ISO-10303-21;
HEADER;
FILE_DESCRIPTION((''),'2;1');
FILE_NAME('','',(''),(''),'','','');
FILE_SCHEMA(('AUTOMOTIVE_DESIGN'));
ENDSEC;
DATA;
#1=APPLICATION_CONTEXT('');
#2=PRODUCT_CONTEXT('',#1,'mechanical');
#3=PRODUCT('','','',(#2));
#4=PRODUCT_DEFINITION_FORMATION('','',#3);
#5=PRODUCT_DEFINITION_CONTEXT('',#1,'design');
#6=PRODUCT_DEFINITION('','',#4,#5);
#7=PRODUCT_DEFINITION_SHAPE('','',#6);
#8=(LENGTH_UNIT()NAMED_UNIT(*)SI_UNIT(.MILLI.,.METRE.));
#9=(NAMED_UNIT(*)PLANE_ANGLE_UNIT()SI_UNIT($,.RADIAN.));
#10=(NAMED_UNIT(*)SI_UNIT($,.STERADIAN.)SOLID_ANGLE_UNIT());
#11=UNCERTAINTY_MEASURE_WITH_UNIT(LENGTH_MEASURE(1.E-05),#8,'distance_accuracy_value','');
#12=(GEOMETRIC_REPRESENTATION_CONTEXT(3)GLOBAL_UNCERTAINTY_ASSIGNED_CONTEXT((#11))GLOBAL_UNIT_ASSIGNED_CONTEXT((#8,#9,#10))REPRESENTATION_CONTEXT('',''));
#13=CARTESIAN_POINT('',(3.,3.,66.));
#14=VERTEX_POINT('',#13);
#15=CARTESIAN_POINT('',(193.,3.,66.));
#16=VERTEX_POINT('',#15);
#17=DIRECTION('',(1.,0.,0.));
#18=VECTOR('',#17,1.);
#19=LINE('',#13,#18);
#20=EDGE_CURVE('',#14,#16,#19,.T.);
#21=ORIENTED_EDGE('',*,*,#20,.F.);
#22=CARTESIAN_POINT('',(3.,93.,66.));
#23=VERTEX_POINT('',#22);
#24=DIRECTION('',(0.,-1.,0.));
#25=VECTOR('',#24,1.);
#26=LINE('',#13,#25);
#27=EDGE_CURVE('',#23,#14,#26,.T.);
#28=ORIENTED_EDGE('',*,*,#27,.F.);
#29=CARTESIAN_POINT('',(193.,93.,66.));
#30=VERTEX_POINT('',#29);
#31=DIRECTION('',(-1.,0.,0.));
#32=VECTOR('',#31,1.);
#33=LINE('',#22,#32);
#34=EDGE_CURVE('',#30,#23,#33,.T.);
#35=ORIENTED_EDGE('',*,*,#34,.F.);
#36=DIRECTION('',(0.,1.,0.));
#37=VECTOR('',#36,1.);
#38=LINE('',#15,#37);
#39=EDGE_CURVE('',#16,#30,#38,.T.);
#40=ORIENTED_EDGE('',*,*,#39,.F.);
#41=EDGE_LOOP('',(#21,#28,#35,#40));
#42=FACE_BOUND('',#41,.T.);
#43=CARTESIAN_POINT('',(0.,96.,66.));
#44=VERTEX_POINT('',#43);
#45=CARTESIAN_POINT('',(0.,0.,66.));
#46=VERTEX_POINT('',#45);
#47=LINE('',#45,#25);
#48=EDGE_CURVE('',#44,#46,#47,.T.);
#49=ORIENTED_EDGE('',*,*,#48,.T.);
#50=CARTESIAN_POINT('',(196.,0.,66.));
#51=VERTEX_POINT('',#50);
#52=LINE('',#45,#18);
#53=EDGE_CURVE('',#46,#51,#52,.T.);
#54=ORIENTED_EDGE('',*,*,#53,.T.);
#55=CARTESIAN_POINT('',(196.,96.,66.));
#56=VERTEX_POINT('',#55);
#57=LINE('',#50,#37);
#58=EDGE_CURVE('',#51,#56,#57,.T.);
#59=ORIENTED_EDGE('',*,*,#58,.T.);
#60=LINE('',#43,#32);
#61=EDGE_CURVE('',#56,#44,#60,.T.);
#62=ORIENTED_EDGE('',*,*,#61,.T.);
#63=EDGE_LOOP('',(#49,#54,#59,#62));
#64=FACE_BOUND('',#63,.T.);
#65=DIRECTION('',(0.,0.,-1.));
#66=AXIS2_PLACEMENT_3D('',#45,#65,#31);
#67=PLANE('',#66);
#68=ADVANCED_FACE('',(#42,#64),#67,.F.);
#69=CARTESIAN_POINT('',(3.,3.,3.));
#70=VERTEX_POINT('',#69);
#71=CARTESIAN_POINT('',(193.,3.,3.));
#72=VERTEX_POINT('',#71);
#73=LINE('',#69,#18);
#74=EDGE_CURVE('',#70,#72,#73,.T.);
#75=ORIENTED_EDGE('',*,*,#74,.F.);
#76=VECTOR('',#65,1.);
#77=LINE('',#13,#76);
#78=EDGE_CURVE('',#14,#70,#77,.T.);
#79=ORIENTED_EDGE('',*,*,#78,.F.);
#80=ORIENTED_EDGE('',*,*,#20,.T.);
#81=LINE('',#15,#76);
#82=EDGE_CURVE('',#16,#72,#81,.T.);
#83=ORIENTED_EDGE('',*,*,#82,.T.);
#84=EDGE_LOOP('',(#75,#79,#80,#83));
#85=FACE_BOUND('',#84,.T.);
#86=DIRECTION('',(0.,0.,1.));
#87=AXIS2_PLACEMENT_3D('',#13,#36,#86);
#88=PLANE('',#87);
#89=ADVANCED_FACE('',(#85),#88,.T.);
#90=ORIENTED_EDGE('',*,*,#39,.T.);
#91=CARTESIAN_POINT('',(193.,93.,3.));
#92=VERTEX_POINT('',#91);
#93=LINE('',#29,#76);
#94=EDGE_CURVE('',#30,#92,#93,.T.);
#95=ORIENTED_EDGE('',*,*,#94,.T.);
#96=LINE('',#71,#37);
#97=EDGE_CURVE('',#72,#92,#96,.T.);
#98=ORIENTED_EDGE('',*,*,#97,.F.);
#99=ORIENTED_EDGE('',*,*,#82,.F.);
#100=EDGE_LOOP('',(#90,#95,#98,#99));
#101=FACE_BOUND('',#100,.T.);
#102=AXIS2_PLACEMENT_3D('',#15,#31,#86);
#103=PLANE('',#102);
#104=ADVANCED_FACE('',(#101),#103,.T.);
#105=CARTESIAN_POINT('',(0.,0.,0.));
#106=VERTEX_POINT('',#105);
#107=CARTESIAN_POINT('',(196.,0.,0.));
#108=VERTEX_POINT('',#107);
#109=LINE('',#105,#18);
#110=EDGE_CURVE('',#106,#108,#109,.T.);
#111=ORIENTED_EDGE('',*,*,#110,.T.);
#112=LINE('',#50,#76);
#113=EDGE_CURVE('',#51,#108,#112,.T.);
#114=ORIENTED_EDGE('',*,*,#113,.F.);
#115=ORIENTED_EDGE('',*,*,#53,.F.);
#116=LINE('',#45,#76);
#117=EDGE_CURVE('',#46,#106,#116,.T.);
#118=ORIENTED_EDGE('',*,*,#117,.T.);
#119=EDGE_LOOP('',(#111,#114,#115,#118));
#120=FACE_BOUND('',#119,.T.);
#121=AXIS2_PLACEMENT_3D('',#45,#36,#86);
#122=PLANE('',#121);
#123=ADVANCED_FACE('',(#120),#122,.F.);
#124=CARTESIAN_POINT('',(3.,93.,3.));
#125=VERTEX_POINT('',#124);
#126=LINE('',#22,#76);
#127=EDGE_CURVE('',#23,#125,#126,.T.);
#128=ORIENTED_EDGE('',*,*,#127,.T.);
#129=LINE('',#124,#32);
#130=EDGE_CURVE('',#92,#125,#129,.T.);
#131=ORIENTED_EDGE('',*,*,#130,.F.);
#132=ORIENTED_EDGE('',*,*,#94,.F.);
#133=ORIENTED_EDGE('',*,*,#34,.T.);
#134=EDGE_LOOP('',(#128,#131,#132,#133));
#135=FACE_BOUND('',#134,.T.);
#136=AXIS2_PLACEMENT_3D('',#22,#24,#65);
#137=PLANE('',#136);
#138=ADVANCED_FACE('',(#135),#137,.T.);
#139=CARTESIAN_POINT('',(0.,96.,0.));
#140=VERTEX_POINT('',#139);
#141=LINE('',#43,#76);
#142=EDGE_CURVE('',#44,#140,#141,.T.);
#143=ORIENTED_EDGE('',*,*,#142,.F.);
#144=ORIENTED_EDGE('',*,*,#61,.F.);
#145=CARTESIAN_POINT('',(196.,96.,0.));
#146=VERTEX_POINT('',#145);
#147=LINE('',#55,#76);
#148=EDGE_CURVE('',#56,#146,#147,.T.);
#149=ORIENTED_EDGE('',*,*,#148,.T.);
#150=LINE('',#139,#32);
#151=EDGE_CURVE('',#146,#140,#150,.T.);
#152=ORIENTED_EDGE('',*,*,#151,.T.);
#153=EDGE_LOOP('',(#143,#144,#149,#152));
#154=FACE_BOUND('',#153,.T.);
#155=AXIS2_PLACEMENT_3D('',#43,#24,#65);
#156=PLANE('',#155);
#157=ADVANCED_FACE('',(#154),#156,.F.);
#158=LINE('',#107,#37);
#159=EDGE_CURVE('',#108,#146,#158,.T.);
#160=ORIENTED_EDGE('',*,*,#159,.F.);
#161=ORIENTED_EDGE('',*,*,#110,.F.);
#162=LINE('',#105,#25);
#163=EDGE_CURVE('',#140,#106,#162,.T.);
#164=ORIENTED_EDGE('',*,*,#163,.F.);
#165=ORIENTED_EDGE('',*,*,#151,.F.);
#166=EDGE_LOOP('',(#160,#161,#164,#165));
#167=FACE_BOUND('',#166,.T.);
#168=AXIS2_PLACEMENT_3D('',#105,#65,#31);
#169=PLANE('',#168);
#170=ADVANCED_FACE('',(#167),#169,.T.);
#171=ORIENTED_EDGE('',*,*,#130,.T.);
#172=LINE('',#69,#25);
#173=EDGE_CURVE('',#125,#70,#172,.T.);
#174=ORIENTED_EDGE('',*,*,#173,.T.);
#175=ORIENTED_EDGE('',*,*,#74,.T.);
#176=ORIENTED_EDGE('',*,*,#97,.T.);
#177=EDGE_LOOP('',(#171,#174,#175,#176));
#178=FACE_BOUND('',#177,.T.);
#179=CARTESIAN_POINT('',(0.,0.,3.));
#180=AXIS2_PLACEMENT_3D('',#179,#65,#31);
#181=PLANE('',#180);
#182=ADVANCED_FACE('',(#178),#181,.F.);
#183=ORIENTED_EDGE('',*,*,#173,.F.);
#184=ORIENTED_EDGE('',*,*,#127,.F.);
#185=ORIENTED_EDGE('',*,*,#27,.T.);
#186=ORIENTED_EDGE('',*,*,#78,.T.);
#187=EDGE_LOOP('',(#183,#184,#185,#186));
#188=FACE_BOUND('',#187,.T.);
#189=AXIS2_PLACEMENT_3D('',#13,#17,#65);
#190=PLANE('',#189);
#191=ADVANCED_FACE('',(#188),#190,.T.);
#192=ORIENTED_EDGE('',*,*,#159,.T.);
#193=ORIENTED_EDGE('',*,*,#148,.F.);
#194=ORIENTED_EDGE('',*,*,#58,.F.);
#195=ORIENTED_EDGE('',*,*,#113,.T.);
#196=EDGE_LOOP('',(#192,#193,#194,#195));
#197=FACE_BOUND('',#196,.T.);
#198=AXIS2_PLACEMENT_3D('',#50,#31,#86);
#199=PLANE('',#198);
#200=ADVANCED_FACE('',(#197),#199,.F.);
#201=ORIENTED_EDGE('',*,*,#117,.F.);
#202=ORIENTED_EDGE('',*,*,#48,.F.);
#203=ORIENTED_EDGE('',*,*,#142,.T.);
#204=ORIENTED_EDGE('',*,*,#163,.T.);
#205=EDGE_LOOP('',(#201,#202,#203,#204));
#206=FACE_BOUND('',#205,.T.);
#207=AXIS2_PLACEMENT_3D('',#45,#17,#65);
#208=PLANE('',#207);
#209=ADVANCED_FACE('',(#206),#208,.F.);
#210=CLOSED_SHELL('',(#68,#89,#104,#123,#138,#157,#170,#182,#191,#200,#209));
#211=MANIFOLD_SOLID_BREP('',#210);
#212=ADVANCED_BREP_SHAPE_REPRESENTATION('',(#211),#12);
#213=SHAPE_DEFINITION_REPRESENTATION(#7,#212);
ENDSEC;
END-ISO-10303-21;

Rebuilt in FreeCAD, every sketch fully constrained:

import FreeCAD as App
import Part
import Sketcher

V = App.Vector
Q = App.Units.Quantity

doc = App.newDocument("Part")
body = doc.addObject("PartDesign::Body", "Body")

# Sketch on XY plane
sketch1 = body.newObject("Sketcher::SketchObject", "Sketch")
sketch1.AttachmentSupport = (doc.getObject("XY_Plane"), [""])
sketch1.MapMode = "FlatFace"
sketch1.addGeometry(Part.LineSegment(V(0, 96, 0), V(0, 0, 0)), False)
sketch1.addGeometry(Part.LineSegment(V(0, 0, 0), V(196, 0, 0)), False)
sketch1.addGeometry(Part.LineSegment(V(196, 0, 0), V(196, 96, 0)), False)
sketch1.addGeometry(Part.LineSegment(V(196, 96, 0), V(0, 96, 0)), False)
sketch1.addGeometry(Part.LineSegment(V(193, 3, 0), V(3, 3, 0)), False)
sketch1.addGeometry(Part.LineSegment(V(3, 3, 0), V(3, 93, 0)), False)
sketch1.addGeometry(Part.LineSegment(V(3, 93, 0), V(193, 93, 0)), False)
sketch1.addGeometry(Part.LineSegment(V(193, 93, 0), V(193, 3, 0)), False)
sketch1.addConstraint(Sketcher.Constraint("Coincident", 0, 2, 1, 1))
sketch1.addConstraint(Sketcher.Constraint("Coincident", 1, 2, 2, 1))
sketch1.addConstraint(Sketcher.Constraint("Coincident", 2, 2, 3, 1))
sketch1.addConstraint(Sketcher.Constraint("Coincident", 3, 2, 0, 1))
sketch1.addConstraint(Sketcher.Constraint("Coincident", 4, 2, 5, 1))
sketch1.addConstraint(Sketcher.Constraint("Coincident", 5, 2, 6, 1))
sketch1.addConstraint(Sketcher.Constraint("Coincident", 6, 2, 7, 1))
sketch1.addConstraint(Sketcher.Constraint("Coincident", 7, 2, 4, 1))
sketch1.addConstraint(Sketcher.Constraint("Vertical", 0))
sketch1.addConstraint(Sketcher.Constraint("Horizontal", 1))
sketch1.addConstraint(Sketcher.Constraint("Vertical", 2))
sketch1.addConstraint(Sketcher.Constraint("Horizontal", 3))
sketch1.addConstraint(Sketcher.Constraint("Horizontal", 4))
sketch1.addConstraint(Sketcher.Constraint("Vertical", 5))
sketch1.addConstraint(Sketcher.Constraint("Horizontal", 6))
sketch1.addConstraint(Sketcher.Constraint("Vertical", 7))
sketch1.addConstraint(Sketcher.Constraint("Coincident", 0, 2, -1, 1))
sketch1.addConstraint(Sketcher.Constraint("DistanceX", 1, 1, 1, 2, Q("196 mm")))
sketch1.addConstraint(Sketcher.Constraint("DistanceX", 4, 2, 4, 1, Q("190 mm")))
sketch1.addConstraint(Sketcher.Constraint("DistanceY", 0, 2, 0, 1, Q("96 mm")))
sketch1.addConstraint(Sketcher.Constraint("DistanceY", 5, 1, 5, 2, Q("90 mm")))
sketch1.addConstraint(Sketcher.Constraint("DistanceX", -1, 1, 4, 2, Q("3 mm")))
sketch1.addConstraint(Sketcher.Constraint("DistanceY", -1, 1, 4, 2, Q("3 mm")))
pad1 = body.newObject("PartDesign::Pad", "Pad")
pad1.Profile = sketch1
pad1.Length = 66

# Sketch on XY plane
sketch2 = body.newObject("Sketcher::SketchObject", "Sketch001")
sketch2.AttachmentSupport = (doc.getObject("XY_Plane"), [""])
sketch2.MapMode = "FlatFace"
sketch2.addGeometry(Part.LineSegment(V(3, 93, 0), V(3, 3, 0)), False)
sketch2.addGeometry(Part.LineSegment(V(3, 3, 0), V(193, 3, 0)), False)
sketch2.addGeometry(Part.LineSegment(V(193, 3, 0), V(193, 93, 0)), False)
sketch2.addGeometry(Part.LineSegment(V(193, 93, 0), V(3, 93, 0)), False)
sketch2.addConstraint(Sketcher.Constraint("Coincident", 0, 2, 1, 1))
sketch2.addConstraint(Sketcher.Constraint("Coincident", 1, 2, 2, 1))
sketch2.addConstraint(Sketcher.Constraint("Coincident", 2, 2, 3, 1))
sketch2.addConstraint(Sketcher.Constraint("Coincident", 3, 2, 0, 1))
sketch2.addConstraint(Sketcher.Constraint("Vertical", 0))
sketch2.addConstraint(Sketcher.Constraint("Horizontal", 1))
sketch2.addConstraint(Sketcher.Constraint("Vertical", 2))
sketch2.addConstraint(Sketcher.Constraint("Horizontal", 3))
sketch2.addConstraint(Sketcher.Constraint("DistanceX", 1, 1, 1, 2, Q("190 mm")))
sketch2.addConstraint(Sketcher.Constraint("DistanceY", 0, 2, 0, 1, Q("90 mm")))
sketch2.addConstraint(Sketcher.Constraint("DistanceX", -1, 1, 0, 2, Q("3 mm")))
sketch2.addConstraint(Sketcher.Constraint("DistanceY", -1, 1, 0, 2, Q("3 mm")))
pad2 = body.newObject("PartDesign::Pad", "Pad001")
pad2.Profile = sketch2
pad2.Length = 3

doc.recompute()
